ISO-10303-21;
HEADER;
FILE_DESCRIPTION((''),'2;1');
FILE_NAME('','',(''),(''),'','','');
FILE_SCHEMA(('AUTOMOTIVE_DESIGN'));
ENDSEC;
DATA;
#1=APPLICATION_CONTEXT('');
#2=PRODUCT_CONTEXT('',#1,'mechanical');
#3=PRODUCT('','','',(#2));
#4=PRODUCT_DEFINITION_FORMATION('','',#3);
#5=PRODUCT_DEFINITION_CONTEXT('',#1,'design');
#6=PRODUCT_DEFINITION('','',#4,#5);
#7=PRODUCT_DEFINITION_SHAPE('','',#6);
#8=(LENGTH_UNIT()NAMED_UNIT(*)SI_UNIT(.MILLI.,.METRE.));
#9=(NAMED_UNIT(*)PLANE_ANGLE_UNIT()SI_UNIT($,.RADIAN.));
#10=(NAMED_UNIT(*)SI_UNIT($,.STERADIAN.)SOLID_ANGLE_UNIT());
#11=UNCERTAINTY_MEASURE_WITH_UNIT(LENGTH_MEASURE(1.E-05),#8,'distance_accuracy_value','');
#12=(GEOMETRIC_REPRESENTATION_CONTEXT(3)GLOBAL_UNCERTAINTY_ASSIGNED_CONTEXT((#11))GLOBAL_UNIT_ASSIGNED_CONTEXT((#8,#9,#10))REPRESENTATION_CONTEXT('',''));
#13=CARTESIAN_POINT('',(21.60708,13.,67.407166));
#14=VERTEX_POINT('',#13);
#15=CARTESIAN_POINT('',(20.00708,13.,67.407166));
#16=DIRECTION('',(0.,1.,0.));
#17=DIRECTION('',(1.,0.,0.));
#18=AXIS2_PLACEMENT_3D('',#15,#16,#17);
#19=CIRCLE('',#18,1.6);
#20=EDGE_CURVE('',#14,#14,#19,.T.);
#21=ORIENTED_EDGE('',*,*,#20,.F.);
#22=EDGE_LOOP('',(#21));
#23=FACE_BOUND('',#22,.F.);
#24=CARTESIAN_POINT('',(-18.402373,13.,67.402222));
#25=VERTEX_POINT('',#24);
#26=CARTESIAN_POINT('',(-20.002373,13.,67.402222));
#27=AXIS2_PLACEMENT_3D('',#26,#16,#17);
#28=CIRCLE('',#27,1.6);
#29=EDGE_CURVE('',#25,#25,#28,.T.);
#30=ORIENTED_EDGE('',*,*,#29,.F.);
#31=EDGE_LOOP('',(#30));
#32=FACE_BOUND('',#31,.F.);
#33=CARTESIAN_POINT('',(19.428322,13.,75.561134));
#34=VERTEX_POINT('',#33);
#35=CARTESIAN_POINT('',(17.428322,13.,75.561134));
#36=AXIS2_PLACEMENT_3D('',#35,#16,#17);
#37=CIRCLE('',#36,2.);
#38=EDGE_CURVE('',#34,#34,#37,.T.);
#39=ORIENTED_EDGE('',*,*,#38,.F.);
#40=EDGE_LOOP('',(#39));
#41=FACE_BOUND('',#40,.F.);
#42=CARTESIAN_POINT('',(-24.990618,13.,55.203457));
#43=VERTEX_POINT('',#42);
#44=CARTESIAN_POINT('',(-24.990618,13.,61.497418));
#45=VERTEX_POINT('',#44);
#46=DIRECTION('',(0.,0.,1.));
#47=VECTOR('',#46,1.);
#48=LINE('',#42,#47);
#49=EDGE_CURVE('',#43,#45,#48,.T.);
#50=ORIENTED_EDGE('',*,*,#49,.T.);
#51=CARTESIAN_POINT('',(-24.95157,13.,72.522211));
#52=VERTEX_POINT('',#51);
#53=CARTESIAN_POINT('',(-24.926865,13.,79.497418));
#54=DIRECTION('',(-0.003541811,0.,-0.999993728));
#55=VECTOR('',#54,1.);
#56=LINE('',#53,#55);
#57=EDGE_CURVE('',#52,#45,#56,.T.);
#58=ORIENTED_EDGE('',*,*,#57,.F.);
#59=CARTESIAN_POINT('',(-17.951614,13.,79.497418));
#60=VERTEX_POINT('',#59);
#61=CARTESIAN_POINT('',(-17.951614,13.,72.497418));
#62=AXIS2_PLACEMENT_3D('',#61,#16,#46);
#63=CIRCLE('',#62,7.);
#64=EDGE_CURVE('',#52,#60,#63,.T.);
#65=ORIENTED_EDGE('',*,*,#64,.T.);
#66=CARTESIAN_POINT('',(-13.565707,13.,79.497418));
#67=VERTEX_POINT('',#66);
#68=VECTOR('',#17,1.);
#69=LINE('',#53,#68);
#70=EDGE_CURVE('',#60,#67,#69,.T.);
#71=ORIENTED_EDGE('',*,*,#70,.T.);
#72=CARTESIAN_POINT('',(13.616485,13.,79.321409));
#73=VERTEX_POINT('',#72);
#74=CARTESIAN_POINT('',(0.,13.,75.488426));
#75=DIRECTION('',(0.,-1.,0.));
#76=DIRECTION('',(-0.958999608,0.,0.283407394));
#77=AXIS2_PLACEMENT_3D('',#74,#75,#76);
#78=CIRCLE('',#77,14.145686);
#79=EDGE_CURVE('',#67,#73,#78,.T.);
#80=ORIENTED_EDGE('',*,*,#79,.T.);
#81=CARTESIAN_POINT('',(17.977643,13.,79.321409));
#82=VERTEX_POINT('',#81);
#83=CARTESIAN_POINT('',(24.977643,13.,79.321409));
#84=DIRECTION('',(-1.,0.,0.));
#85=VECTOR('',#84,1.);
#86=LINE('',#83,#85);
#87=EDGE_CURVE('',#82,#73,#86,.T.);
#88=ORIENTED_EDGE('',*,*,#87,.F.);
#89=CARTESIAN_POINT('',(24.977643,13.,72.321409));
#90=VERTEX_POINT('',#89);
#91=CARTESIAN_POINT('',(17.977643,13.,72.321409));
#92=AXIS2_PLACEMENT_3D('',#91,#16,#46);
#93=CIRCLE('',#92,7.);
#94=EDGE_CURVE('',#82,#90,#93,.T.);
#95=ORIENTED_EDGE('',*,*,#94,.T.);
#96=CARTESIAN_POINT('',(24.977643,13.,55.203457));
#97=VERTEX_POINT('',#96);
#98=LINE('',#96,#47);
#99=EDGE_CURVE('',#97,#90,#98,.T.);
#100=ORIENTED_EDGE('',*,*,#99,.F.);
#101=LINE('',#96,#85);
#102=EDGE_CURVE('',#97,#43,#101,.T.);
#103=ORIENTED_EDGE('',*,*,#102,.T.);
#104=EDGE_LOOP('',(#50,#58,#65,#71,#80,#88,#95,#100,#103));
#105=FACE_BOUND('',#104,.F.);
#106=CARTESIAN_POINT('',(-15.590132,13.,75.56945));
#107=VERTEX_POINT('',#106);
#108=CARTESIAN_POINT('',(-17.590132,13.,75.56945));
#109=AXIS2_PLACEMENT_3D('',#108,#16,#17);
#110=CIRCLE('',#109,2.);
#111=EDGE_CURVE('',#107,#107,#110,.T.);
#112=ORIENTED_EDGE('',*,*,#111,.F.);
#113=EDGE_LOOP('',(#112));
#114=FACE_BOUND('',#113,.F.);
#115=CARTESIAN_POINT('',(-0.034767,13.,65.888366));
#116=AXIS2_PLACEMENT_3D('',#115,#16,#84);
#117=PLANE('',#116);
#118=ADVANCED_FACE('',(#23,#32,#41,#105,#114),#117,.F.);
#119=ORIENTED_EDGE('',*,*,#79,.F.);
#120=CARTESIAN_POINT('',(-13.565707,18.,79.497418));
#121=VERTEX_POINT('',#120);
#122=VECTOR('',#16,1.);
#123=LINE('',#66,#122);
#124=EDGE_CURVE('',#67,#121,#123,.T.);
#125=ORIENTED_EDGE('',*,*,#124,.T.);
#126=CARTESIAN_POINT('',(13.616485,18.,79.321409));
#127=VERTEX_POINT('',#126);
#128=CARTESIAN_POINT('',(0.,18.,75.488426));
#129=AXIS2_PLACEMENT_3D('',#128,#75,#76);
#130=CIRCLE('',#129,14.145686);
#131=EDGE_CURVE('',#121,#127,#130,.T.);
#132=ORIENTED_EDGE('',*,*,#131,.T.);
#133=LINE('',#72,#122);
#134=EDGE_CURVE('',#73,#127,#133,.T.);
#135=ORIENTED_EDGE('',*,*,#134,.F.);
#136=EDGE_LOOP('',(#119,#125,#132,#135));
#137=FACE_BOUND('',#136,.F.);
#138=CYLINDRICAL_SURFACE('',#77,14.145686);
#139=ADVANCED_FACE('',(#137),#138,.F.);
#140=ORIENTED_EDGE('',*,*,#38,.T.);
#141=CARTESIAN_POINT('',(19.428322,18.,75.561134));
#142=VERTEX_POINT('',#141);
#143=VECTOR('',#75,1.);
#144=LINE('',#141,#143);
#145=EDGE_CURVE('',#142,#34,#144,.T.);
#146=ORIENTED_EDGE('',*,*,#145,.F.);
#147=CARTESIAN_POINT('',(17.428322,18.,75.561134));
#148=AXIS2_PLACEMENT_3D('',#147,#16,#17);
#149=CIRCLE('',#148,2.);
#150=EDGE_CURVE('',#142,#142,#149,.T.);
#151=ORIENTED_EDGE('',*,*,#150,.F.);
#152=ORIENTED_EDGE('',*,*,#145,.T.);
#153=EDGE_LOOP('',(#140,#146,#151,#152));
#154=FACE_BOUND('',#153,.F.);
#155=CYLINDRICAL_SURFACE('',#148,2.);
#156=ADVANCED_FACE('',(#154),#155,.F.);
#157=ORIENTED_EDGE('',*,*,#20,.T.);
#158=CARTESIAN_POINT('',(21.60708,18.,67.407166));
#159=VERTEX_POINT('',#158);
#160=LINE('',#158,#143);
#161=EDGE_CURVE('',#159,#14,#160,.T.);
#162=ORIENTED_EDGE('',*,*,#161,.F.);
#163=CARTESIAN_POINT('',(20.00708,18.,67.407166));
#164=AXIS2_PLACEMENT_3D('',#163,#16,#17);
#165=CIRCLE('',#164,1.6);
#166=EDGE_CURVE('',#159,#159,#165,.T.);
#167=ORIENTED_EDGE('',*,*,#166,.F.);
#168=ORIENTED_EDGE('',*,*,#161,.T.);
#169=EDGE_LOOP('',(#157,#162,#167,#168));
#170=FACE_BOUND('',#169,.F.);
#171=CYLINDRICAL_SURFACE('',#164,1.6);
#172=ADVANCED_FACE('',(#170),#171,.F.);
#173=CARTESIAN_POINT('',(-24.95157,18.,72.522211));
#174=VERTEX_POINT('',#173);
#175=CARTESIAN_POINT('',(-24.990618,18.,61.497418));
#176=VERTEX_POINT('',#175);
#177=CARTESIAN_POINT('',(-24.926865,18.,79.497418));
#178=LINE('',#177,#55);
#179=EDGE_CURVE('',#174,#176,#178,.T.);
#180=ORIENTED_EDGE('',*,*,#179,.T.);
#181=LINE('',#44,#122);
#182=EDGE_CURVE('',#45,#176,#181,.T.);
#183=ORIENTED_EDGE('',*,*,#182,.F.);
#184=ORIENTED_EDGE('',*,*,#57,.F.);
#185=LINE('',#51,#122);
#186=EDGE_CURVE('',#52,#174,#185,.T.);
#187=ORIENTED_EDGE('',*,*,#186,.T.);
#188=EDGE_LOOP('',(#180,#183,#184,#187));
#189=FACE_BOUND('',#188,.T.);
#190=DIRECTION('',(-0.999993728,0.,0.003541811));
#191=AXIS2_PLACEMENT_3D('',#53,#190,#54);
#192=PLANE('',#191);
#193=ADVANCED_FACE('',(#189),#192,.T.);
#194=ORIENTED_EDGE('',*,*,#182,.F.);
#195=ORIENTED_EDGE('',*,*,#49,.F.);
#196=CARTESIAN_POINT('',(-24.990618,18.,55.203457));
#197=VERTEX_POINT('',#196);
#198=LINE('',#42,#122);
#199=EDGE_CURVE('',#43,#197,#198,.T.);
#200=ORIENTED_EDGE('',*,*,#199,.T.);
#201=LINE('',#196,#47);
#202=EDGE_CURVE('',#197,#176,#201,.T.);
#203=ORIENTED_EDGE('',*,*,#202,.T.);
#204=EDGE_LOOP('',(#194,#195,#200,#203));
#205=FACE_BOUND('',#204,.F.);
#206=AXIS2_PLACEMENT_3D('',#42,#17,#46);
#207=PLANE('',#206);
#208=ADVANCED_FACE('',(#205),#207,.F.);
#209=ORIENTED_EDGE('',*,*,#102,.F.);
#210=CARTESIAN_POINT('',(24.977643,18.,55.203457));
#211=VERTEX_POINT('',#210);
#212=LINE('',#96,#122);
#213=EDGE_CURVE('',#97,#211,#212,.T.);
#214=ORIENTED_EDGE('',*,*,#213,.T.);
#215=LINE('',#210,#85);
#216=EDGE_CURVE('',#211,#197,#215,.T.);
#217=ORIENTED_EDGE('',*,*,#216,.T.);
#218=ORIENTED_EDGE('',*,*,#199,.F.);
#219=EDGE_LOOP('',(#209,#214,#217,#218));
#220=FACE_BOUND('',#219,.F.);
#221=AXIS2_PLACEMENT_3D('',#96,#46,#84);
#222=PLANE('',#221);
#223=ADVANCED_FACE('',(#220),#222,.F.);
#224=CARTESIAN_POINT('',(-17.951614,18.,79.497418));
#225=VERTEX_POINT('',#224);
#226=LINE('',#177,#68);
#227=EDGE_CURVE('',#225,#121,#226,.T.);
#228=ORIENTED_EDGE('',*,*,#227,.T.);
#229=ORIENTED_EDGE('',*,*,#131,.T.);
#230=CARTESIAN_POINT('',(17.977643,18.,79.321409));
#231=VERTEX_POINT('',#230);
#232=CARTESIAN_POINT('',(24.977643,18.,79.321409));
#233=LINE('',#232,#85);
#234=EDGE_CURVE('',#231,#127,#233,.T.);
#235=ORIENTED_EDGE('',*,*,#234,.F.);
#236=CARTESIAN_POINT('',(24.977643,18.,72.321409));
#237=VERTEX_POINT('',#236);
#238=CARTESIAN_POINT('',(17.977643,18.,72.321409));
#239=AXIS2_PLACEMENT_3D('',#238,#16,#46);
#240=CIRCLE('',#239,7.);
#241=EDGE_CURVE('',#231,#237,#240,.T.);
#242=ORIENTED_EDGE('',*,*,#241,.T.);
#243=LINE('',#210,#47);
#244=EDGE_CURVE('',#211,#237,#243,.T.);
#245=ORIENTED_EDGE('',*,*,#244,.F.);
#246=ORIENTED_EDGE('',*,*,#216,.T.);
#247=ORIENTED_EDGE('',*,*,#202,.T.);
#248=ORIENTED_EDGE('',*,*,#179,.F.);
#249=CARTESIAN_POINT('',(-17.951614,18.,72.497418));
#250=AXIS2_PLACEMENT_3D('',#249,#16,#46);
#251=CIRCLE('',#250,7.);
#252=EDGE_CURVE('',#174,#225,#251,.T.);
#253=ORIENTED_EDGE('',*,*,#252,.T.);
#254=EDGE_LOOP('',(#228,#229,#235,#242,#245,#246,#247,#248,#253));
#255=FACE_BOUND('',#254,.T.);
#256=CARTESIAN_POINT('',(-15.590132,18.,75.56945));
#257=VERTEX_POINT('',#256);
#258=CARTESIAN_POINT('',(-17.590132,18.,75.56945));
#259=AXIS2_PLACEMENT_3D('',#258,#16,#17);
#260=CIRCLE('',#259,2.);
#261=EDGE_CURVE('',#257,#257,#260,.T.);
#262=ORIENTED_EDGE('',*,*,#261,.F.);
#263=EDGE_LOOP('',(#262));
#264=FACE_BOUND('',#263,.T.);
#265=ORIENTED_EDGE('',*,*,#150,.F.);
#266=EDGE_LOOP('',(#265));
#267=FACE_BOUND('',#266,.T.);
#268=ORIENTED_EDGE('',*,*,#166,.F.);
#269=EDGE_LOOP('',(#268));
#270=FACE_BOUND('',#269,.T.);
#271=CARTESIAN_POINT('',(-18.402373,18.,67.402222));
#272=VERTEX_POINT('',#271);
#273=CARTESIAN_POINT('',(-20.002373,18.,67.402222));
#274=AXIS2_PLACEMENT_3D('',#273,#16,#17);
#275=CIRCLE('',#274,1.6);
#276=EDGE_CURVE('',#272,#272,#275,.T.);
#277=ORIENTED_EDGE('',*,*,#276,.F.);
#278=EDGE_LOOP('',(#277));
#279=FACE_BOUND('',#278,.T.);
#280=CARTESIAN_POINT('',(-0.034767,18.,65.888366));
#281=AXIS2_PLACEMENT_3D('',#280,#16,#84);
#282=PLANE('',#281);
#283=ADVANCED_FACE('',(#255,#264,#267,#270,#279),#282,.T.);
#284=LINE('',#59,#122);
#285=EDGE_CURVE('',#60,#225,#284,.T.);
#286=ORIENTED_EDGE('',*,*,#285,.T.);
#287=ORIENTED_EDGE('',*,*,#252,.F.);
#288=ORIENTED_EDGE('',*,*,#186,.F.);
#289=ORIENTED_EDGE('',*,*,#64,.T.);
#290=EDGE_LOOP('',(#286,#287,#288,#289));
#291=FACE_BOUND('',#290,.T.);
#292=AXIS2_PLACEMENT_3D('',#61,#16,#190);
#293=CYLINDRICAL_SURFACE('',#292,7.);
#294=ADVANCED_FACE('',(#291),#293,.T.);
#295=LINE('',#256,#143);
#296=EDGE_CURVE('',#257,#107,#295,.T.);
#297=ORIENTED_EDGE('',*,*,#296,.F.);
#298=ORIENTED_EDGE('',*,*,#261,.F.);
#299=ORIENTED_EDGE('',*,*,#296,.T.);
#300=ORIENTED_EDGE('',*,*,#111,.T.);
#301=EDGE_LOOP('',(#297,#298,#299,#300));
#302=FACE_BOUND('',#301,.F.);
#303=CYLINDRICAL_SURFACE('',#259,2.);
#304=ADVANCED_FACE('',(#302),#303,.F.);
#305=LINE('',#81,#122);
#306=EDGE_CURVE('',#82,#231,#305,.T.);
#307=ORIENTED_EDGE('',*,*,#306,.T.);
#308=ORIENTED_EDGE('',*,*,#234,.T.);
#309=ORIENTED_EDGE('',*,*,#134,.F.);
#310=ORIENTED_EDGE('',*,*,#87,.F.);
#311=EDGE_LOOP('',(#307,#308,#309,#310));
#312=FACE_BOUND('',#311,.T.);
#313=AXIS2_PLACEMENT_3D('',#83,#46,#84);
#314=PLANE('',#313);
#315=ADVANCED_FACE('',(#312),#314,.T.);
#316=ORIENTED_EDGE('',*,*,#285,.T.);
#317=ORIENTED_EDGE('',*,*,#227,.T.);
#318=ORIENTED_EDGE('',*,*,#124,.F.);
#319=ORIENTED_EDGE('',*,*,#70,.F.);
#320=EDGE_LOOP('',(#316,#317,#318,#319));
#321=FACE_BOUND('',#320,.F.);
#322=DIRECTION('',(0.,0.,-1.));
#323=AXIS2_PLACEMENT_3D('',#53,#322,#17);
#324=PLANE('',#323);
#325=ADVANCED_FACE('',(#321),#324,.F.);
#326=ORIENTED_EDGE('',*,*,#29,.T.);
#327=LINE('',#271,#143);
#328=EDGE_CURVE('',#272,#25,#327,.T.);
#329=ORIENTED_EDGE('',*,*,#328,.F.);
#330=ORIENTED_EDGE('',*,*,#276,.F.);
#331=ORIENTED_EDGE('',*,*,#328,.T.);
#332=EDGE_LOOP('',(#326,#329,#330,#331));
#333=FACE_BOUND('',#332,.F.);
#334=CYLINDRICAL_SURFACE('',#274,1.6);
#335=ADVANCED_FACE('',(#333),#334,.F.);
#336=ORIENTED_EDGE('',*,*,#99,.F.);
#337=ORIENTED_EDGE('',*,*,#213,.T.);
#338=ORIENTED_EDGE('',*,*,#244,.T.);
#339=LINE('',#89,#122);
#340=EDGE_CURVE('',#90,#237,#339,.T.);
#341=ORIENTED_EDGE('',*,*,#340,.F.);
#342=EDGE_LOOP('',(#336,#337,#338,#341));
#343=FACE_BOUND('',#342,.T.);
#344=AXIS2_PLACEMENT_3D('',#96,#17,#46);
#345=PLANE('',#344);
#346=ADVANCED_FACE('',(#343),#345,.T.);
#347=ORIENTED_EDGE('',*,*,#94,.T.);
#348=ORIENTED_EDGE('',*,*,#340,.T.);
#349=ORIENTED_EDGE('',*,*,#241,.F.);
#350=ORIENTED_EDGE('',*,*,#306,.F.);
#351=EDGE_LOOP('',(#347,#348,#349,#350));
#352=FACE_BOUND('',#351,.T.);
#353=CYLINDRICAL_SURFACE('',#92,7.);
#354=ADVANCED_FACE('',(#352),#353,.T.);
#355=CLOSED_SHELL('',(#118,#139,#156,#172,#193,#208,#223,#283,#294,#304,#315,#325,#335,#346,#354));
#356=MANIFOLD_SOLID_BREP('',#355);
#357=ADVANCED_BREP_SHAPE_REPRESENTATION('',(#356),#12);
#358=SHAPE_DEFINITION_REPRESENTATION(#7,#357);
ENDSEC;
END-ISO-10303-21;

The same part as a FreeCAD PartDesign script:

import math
import FreeCAD as App
import Part
import Sketcher


def edges_at(feature, points):
    """Names of the edges that pass closest to the given points."""
    edges = feature.Shape.Edges
    near = lambda p: min(range(len(edges)), key=lambda i: edges[i].distToShape(Part.Vertex(*p))[0])
    return sorted({f"Edge{near(p) + 1}" for p in points})

doc = App.newDocument("Part")
body = doc.addObject("PartDesign::Body", "Body")

# Sketch on XZ plane
sketch1 = body.newObject("Sketcher::SketchObject", "Sketch")
sketch1.AttachmentSupport = (doc.getObject("XZ_Plane"), [""])
sketch1.MapMode = "FlatFace"
sketch1.addGeometry([
    Part.ArcOfCircle(Part.Circle(App.Vector(0, 75, 0), App.Vector(0, 0, 1), 14), math.radians(164), math.radians(376)),  # 0
    Part.LineSegment(App.Vector(-14, 79, 0), App.Vector(-25, 79, 0)),  # 1
    Part.LineSegment(App.Vector(-25, 79, 0), App.Vector(-25, 61, 0)),  # 2
    Part.LineSegment(App.Vector(-25, 61, 0), App.Vector(-25, 55, 0)),  # 3
    Part.LineSegment(App.Vector(-25, 55, 0), App.Vector(25, 55, 0)),  # 4
    Part.LineSegment(App.Vector(25, 55, 0), App.Vector(25, 79, 0)),  # 5
    Part.LineSegment(App.Vector(25, 79, 0), App.Vector(14, 79, 0)),  # 6
], False)
sketch1.addConstraint([
    Sketcher.Constraint("Coincident", 0, 1, 1, 1),
    Sketcher.Constraint("Coincident", 1, 2, 2, 1),
    Sketcher.Constraint("Coincident", 2, 2, 3, 1),
    Sketcher.Constraint("Coincident", 3, 2, 4, 1),
    Sketcher.Constraint("Coincident", 4, 2, 5, 1),
    Sketcher.Constraint("Coincident", 5, 2, 6, 1),
    Sketcher.Constraint("Coincident", 6, 2, 0, 2),
    Sketcher.Constraint("Horizontal", 1),
    Sketcher.Constraint("Vertical", 3),
    Sketcher.Constraint("Horizontal", 4),
    Sketcher.Constraint("Vertical", 5),
    Sketcher.Constraint("Horizontal", 6),
    Sketcher.Constraint("PointOnObject", 0, 3, -2),
    Sketcher.Constraint("Equal", 1, 6),
    Sketcher.Constraint("DistanceY", 2, 2, 1, 2, 18.0),
    Sketcher.Constraint("Radius", 0, 14.145686),
    Sketcher.Constraint("DistanceX", 4, 1, 4, 2, 49.968261),
    Sketcher.Constraint("DistanceY", 3, 2, 3, 1, 6.293961),
    Sketcher.Constraint("DistanceX", 1, 2, 1, 1, 11.361158),
    Sketcher.Constraint("DistanceY", 5, 1, 5, 2, 24.117952),
    Sketcher.Constraint("DistanceY", -1, 1, 0, 1, 79.497418),
    Sketcher.Constraint("DistanceX", 2, 2, -1, 1, 24.990618),
])
pad1 = body.newObject("PartDesign::Pad", "Pad")
pad1.Profile = sketch1
pad1.Length = 5
pad1.Reversed = True
doc.recompute()

fillet = body.newObject("PartDesign::Fillet", "Fillet")
fillet.Base = (pad1, edges_at(pad1, [(24.978, 2.5, 79.321), (-24.927, 2.5, 79.497)]))
fillet.Radius = 7

# Sketch on XZ plane
sketch2 = body.newObject("Sketcher::SketchObject", "Sketch001")
sketch2.AttachmentSupport = (doc.getObject("XZ_Plane"), [""])
sketch2.MapMode = "FlatFace"
sketch2.AttachmentOffset = App.Placement(App.Vector(0, 0, -5), App.Rotation())
sketch2.addGeometry([
    Part.Circle(App.Vector(-17.6, 75.6, 0), App.Vector(0, 0, 1), 2),
    Part.Circle(App.Vector(17.4, 75.6, 0), App.Vector(0, 0, 1), 2),
    Part.Circle(App.Vector(-20, 67.4, 0), App.Vector(0, 0, 1), 1.6),
    Part.Circle(App.Vector(20, 67.4, 0), App.Vector(0, 0, 1), 1.6),
], False)
sketch2.addConstraint([
    Sketcher.Constraint("Equal", 0, 1),
    Sketcher.Constraint("Equal", 2, 3),
    Sketcher.Constraint("Diameter", 0, 4.0),
    Sketcher.Constraint("Diameter", 2, 3.2),
    Sketcher.Constraint("DistanceY", -1, 1, 0, 3, 75.56945),
    Sketcher.Constraint("DistanceY", -1, 1, 2, 3, 67.402222),
    Sketcher.Constraint("DistanceX", -1, 1, 3, 3, 20.00708),
    Sketcher.Constraint("DistanceX", 2, 3, 0, 3, 2.412241),
    Sketcher.Constraint("DistanceX", 0, 3, -1, 1, 17.590132),
    Sketcher.Constraint("DistanceX", -1, 1, 1, 3, 17.428322),
    Sketcher.Constraint("DistanceY", -1, 1, 1, 3, 75.561134),
    Sketcher.Constraint("DistanceY", -1, 1, 3, 3, 67.407166),
])
pocket1 = body.newObject("PartDesign::Pocket", "Pocket")
pocket1.Profile = sketch2
pocket1.Length = 5
pocket1.Reversed = True
body2 = doc.addObject("PartDesign::Body", "Body001")
doc.recompute()

body.Placement = App.Placement(App.Vector(0, 13, 0), App.Rotation(App.Vector(0, 0, 1), 0))
boolean = body2.newObject("PartDesign::Boolean", "Boolean")
boolean.Type = "Fuse"
boolean.addObjects([body])

doc.recompute()
